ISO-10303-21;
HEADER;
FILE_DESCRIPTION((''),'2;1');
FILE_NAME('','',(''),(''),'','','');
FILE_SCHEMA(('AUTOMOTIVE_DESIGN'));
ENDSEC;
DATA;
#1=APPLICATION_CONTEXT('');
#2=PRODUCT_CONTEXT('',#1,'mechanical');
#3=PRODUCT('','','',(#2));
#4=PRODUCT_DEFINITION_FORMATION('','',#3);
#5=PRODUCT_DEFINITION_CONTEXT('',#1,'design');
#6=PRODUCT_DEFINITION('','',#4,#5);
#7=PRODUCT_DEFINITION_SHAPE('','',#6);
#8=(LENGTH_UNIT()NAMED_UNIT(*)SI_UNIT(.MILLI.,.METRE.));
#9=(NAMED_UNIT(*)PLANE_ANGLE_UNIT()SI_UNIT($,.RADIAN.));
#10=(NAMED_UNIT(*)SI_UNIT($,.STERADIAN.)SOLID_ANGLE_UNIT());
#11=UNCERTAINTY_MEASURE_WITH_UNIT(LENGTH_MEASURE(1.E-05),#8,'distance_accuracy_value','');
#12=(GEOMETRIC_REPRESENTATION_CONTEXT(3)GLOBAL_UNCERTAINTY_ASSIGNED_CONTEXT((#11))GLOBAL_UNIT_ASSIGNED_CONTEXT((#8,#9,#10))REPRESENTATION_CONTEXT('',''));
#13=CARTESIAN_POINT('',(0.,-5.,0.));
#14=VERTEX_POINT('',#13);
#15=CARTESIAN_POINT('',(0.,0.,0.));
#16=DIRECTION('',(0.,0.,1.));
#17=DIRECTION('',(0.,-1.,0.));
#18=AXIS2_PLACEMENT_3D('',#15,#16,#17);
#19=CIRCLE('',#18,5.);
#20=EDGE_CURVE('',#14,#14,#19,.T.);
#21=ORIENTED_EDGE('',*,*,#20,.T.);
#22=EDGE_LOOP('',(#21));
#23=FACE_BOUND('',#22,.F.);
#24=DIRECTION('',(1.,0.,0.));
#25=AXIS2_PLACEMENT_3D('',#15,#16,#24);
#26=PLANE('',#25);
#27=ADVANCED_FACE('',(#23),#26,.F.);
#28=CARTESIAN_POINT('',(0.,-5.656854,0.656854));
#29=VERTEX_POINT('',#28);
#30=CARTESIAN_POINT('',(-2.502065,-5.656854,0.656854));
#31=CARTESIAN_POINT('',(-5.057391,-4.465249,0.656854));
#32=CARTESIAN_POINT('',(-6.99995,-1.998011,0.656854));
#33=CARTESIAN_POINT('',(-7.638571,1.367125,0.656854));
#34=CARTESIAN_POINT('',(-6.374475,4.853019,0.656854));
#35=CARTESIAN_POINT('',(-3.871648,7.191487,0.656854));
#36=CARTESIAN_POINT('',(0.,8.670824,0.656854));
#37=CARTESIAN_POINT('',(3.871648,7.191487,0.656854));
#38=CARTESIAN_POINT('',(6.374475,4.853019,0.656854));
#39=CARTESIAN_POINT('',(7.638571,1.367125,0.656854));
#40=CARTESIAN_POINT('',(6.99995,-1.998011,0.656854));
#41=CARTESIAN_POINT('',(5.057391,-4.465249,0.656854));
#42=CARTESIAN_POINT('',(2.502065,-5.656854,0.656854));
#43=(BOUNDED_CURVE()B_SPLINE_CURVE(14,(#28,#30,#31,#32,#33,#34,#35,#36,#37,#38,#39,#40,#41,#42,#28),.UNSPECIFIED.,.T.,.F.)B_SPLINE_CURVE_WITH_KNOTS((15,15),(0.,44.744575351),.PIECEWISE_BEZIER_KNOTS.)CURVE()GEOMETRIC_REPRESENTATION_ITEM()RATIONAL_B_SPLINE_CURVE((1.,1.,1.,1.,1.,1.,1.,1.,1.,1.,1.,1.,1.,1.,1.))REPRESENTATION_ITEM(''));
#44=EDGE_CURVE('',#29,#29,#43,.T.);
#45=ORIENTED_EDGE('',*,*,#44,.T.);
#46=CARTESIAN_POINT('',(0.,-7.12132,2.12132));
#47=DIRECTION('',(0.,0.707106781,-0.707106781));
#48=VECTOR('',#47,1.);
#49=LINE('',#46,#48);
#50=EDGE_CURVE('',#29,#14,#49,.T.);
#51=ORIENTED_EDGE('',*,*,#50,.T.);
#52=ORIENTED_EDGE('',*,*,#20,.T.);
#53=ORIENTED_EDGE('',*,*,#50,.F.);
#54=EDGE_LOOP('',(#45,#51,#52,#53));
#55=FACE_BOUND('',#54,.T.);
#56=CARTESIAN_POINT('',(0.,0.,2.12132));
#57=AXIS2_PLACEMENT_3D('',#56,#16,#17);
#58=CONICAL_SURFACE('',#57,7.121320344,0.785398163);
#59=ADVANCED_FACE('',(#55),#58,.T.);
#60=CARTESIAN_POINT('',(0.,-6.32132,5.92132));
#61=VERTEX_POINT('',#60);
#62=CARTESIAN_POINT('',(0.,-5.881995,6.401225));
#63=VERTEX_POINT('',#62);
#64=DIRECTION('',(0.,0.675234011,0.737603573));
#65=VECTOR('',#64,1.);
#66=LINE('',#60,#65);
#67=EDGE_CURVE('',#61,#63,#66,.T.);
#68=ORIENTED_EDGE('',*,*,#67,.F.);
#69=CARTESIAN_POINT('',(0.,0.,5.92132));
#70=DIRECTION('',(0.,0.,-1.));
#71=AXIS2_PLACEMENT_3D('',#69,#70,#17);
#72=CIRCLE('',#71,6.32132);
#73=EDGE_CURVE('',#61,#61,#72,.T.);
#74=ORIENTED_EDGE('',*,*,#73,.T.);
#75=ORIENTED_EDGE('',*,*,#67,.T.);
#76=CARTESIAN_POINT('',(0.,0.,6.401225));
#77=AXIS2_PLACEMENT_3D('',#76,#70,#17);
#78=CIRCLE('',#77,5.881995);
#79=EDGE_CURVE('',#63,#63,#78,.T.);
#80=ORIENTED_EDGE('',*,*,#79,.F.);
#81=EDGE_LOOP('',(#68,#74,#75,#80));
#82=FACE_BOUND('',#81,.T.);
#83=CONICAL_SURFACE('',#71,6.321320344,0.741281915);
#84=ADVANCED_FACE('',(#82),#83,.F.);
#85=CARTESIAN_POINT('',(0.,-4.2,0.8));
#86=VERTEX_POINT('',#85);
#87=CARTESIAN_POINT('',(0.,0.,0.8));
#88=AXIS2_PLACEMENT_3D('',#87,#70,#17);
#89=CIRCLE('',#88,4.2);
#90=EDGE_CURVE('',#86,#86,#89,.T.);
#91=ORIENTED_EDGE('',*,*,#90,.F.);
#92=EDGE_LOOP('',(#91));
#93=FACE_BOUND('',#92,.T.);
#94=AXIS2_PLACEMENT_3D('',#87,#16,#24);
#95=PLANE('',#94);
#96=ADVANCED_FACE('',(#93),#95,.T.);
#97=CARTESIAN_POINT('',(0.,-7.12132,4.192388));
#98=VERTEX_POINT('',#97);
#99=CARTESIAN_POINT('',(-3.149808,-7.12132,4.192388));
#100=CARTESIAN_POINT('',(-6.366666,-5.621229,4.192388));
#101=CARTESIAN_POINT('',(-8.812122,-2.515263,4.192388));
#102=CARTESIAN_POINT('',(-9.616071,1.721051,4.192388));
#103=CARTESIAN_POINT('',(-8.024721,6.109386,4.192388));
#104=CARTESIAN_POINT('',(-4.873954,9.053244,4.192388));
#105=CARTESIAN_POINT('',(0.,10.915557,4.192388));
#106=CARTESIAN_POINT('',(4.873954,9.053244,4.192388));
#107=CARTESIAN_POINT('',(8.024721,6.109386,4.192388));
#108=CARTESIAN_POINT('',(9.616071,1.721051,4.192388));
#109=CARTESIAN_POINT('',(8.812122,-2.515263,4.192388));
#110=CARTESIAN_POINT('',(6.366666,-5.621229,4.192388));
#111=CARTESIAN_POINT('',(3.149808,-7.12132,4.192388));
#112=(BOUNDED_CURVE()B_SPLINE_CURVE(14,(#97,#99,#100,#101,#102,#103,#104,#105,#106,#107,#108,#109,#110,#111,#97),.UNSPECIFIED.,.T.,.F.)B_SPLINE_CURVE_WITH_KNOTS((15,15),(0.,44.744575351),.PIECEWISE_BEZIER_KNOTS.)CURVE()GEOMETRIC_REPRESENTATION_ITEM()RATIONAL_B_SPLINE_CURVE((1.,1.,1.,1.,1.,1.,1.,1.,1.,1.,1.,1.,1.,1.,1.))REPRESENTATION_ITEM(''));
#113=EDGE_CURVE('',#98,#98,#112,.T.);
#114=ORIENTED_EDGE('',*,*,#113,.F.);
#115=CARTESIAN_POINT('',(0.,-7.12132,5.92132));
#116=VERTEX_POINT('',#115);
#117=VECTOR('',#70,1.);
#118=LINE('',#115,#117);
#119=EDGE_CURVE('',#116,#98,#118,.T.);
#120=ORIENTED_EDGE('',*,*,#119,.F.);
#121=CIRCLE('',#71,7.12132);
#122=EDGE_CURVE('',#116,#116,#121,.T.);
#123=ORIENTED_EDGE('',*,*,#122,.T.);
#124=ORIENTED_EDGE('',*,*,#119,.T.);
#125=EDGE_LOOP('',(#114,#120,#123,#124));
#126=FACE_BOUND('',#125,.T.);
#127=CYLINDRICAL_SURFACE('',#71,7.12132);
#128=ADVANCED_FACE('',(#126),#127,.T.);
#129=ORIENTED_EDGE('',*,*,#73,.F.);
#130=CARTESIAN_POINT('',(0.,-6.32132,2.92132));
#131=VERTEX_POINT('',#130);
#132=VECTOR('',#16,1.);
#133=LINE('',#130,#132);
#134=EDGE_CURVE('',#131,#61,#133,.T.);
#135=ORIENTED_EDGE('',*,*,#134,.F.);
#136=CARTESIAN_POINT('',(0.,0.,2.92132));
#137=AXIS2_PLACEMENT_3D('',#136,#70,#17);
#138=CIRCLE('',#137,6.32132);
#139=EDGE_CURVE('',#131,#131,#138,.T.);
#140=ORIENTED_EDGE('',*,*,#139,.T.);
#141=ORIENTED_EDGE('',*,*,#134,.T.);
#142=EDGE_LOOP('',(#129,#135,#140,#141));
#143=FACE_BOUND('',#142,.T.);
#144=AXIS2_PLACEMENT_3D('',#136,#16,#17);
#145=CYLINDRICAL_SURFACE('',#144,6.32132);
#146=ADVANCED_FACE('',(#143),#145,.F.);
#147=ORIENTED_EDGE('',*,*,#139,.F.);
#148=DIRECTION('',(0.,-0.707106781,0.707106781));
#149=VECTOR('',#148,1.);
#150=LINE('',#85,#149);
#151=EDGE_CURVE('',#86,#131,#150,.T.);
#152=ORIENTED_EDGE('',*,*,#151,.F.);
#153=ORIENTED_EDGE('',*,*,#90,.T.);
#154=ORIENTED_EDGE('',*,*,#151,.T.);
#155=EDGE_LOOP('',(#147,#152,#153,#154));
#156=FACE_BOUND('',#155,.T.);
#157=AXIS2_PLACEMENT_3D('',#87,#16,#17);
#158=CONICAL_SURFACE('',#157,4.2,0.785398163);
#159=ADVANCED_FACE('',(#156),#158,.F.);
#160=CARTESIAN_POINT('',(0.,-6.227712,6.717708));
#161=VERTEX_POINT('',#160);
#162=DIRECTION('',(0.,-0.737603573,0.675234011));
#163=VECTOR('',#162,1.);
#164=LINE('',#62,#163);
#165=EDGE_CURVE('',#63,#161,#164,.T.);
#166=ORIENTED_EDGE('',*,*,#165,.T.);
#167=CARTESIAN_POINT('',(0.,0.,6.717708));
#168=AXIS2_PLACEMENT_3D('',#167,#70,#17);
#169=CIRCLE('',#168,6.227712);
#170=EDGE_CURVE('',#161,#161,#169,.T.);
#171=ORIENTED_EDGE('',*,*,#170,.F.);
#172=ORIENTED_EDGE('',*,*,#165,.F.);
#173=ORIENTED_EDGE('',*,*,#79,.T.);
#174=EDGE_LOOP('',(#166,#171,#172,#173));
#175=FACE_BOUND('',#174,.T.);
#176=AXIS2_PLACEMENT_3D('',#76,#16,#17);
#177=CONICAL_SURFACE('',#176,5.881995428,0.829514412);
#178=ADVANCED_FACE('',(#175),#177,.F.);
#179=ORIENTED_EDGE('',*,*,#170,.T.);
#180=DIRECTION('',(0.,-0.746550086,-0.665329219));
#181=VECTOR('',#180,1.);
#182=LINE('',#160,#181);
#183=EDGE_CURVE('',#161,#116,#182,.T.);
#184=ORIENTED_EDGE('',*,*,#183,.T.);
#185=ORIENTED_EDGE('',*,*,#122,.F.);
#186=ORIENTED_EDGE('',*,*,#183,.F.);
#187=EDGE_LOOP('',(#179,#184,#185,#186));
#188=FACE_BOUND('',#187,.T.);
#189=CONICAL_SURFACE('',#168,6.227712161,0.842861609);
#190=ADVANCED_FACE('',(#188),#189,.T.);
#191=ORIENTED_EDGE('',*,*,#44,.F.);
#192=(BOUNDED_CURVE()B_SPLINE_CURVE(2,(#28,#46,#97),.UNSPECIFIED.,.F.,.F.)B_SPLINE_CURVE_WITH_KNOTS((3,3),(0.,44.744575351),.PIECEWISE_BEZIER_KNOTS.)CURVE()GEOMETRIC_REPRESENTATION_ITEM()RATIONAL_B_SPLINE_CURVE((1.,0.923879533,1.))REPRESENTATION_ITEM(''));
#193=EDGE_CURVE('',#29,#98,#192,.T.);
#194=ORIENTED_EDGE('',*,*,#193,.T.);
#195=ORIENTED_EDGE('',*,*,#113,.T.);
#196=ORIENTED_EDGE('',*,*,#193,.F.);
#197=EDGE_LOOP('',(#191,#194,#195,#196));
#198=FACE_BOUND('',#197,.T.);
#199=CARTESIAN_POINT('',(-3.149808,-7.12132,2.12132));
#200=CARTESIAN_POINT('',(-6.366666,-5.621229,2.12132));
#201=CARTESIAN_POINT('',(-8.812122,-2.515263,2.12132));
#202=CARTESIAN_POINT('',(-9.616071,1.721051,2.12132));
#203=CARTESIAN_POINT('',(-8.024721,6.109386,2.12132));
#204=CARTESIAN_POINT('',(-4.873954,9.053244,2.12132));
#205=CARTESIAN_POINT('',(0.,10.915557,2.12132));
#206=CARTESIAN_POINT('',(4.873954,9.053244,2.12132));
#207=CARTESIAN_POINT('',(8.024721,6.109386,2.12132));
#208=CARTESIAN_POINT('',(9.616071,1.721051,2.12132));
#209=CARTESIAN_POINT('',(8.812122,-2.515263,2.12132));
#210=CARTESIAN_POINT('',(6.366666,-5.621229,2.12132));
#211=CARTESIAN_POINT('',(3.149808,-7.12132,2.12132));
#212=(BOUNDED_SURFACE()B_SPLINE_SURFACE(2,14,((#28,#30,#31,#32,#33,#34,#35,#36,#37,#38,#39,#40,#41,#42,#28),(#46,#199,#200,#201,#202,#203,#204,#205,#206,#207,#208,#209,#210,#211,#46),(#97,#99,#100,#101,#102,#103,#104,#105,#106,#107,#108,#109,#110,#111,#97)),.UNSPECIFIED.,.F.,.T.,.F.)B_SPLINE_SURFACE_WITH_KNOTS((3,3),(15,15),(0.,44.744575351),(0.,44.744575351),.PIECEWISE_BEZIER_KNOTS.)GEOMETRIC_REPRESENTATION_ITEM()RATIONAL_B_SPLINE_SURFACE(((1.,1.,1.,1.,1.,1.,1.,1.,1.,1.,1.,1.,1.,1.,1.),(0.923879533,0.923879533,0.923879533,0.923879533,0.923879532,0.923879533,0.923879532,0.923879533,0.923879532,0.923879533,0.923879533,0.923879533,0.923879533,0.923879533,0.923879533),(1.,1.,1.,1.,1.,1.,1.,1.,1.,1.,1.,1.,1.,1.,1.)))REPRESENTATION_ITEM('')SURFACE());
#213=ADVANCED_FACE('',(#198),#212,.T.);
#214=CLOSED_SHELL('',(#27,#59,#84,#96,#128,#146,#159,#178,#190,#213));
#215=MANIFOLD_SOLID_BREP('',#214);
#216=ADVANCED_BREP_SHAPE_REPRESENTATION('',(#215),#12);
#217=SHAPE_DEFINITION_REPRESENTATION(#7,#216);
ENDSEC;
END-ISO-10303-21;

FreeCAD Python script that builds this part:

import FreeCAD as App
import Part
import Sketcher
Q = App.Units.Quantity


def edges_at(feature, points):
    """Names of the edges that pass closest to the given points."""
    edges = feature.Shape.Edges
    near = lambda p: min(range(len(edges)), key=lambda i: edges[i].distToShape(Part.Vertex(*p))[0])
    return sorted({f"Edge{near(p) + 1}" for p in points})

doc = App.newDocument("Part")
body = doc.addObject("PartDesign::Body", "Body")

# Sketch on XY plane
sketch1 = doc.addObject("Sketcher::SketchObject", "Sketch")
body.addObject(sketch1)
sketch1.AttachmentSupport = (doc.XY_Plane, [""])
sketch1.MapMode = "FlatFace"
sketch1.addGeometry(Part.Circle(App.Vector(0, 0, 0), App.Vector(0, 0, 1), 5), False)
sketch1.addConstraint([
    Sketcher.Constraint("Coincident", 0, 3, -1, 1),
    Sketcher.Constraint("Diameter", 0, Q("10 mm")),
])
pad1 = doc.addObject("PartDesign::Pad", "Pad")
body.addObject(pad1)
pad1.Profile = sketch1
pad1.Length = 0.8
pad1.TaperAngle = -45

# Sketch on YZ plane
sketch2 = doc.addObject("Sketcher::SketchObject", "Sketch001")
body.addObject(sketch2)
sketch2.AttachmentSupport = (doc.YZ_Plane, [""])
sketch2.MapMode = "FlatFace"
sketch2.addGeometry([
    Part.LineSegment(App.Vector(-7.12132, 2.12132, 0), App.Vector(-5, 0, 0)),  # 0
    Part.LineSegment(App.Vector(-5, 0, 0), App.Vector(-4.2, 0.8, 0)),  # 1
    Part.LineSegment(App.Vector(-4.2, 0.8, 0), App.Vector(-6.32132, 2.92132, 0)),  # 2
    Part.LineSegment(App.Vector(-6.32132, 2.92132, 0), App.Vector(-6.32132, 5.92132, 0)),  # 3
    Part.LineSegment(App.Vector(-6.32132, 5.92132, 0), App.Vector(-5.881995, 6.401225, 0)),  # 4
    Part.LineSegment(App.Vector(-5.881995, 6.401225, 0), App.Vector(-6.227712, 6.717708, 0)),  # 5
    Part.LineSegment(App.Vector(-6.227712, 6.717708, 0), App.Vector(-7.12132, 5.92132, 0)),  # 6
    Part.LineSegment(App.Vector(-7.12132, 5.92132, 0), App.Vector(-7.12132, 2.12132, 0)),  # 7
], False)
sketch2.addConstraint([
    Sketcher.Constraint("Coincident", 0, 2, 1, 1),
    Sketcher.Constraint("Coincident", 1, 2, 2, 1),
    Sketcher.Constraint("Coincident", 2, 2, 3, 1),
    Sketcher.Constraint("Coincident", 3, 2, 4, 1),
    Sketcher.Constraint("Coincident", 4, 2, 5, 1),
    Sketcher.Constraint("Coincident", 5, 2, 6, 1),
    Sketcher.Constraint("Coincident", 6, 2, 7, 1),
    Sketcher.Constraint("Coincident", 7, 2, 0, 1),
    Sketcher.Constraint("Vertical", 3),
    Sketcher.Constraint("Vertical", 7),
    Sketcher.Constraint("PointOnObject", 0, 2, -1),
    Sketcher.Constraint("Perpendicular", 0, 1),
    Sketcher.Constraint("Perpendicular", 1, 2),
    Sketcher.Constraint("Perpendicular", 4, 5),
    Sketcher.Constraint("Horizontal", 3, 2, 6, 2),
    Sketcher.Constraint("Equal", 0, 2),
    Sketcher.Constraint("DistanceY", 3, 1, 3, 2, Q("3 mm")),
    Sketcher.Constraint("Angle", 0, Q("-45 deg")),
    Sketcher.Constraint("Distance", 0, Q("3 mm")),
    Sketcher.Constraint("DistanceY", 7, 2, 7, 1, Q("3.8 mm")),
    Sketcher.Constraint("DistanceX", 0, 2, -1, 1, Q("5 mm")),
    Sketcher.Constraint("DistanceY", -1, 1, 5, 2, Q("6.717708 mm")),
    Sketcher.Constraint("DistanceX", 3, 2, 5, 2, Q("0.093608 mm")),
    Sketcher.Constraint("Distance", 4, Q("0.650626 mm")),
])
revolution = doc.addObject("PartDesign::Revolution", "Revolution")
body.addObject(revolution)
revolution.Profile = sketch2
revolution.ReferenceAxis = (sketch2, ["V_Axis"])
revolution.Angle = 360
doc.recompute()

fillet = doc.addObject("PartDesign::Fillet", "Fillet")
body.addObject(fillet)
fillet.Base = (revolution, edges_at(revolution, [(0, 7.121, 2.121)]))
fillet.Radius = 5

doc.recompute()
